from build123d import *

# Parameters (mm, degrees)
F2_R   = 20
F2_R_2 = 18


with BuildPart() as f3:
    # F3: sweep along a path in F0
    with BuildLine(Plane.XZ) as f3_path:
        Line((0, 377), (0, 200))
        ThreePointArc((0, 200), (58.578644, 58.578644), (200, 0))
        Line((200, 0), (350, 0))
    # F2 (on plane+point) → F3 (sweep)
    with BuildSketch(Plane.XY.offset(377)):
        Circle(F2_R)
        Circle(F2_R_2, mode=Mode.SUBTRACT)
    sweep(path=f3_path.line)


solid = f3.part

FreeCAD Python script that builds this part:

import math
import FreeCAD as App
import Part
import Sketcher

V = App.Vector
Q = App.Units.Quantity

doc = App.newDocument("Part")
body = doc.addObject("PartDesign::Body", "Body")

sketch1 = doc.addObject("Sketcher::SketchObject", "Sketch")
body.addObject(sketch1)
sketch1.AttachmentSupport = (doc.XY_Plane, [""])
sketch1.MapMode = "FlatFace"
sketch1.AttachmentOffset = App.Placement(V(0, 0, 377), App.Rotation())
sketch1.addGeometry(Part.Circle(V(0, 0, 0), V(0, 0, 1), 20), False)
sketch1.addGeometry(Part.Circle(V(0, 0, 0), V(0, 0, 1), 18), False)
sketch1.addConstraint(Sketcher.Constraint("Coincident", 0, 3, -1, 1))
sketch1.addConstraint(Sketcher.Constraint("Coincident", 1, 3, -1, 1))
sketch1.addConstraint(Sketcher.Constraint("Diameter", 0, Q("40 mm")))
sketch1.addConstraint(Sketcher.Constraint("Diameter", 1, Q("36 mm")))

sketch2 = doc.addObject("Sketcher::SketchObject", "Sketch001")
body.addObject(sketch2)
sketch2.AttachmentSupport = (doc.XZ_Plane, [""])
sketch2.MapMode = "FlatFace"
sketch2.addGeometry(Part.LineSegment(V(0, 377, 0), V(0, 200, 0)), False)
sketch2.addGeometry(Part.ArcOfCircle(Part.Circle(V(200.000001, 200.000001, 0), V(0, 0, 1), 200.000001), math.radians(-180), math.radians(-90)), False)
sketch2.addGeometry(Part.LineSegment(V(200, 0, 0), V(350, 0, 0)), False)
sketch2.addConstraint(Sketcher.Constraint("Tangent", 0, 2, 1, 1))
sketch2.addConstraint(Sketcher.Constraint("Tangent", 1, 2, 2, 1))
sketch2.addConstraint(Sketcher.Constraint("Vertical", 0))
sketch2.addConstraint(Sketcher.Constraint("Horizontal", 2))
sketch2.addConstraint(Sketcher.Constraint("PointOnObject", 0, 1, -2))
sketch2.addConstraint(Sketcher.Constraint("PointOnObject", 1, 2, -1))
sketch2.addConstraint(Sketcher.Constraint("Radius", 1, Q("200.000001 mm")))
sketch2.addConstraint(Sketcher.Constraint("DistanceX", 2, 1, 2, 2, Q("150 mm")))
sketch2.addConstraint(Sketcher.Constraint("DistanceY", 0, 2, 0, 1, Q("177 mm")))
doc.recompute()

additivepipe = doc.addObject("PartDesign::AdditivePipe", "AdditivePipe")
body.addObject(additivepipe)
additivepipe.Profile = sketch1
additivepipe.Spine = (sketch2, ["Edge1", "Edge2", "Edge3"])

doc.recompute()
